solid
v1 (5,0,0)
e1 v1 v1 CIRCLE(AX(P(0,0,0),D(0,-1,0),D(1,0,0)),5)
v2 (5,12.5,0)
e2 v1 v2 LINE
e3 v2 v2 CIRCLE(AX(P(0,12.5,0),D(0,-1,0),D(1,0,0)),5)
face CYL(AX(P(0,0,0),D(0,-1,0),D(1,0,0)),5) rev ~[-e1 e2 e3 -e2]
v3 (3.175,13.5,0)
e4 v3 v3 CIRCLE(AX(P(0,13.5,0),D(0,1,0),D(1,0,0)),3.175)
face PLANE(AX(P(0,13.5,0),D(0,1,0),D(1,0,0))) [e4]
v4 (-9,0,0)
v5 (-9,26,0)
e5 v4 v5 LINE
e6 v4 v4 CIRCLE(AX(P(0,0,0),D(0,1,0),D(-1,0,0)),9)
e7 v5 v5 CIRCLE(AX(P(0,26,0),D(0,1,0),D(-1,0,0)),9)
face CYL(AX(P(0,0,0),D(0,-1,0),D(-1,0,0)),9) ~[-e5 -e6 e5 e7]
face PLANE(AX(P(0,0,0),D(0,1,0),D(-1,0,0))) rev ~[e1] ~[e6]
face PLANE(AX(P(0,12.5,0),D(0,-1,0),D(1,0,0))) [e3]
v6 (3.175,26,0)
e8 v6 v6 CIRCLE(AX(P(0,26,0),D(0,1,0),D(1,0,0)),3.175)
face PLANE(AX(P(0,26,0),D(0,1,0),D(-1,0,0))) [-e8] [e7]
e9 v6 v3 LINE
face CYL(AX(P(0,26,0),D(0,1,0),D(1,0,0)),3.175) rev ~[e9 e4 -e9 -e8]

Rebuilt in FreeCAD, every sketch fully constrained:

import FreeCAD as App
import Part
import Sketcher
from FreeCAD import Vector
Q = App.Units.Quantity

doc = App.newDocument("Part")
body = doc.addObject("PartDesign::Body", "Body")

sketch1 = body.newObject("Sketcher::SketchObject", "Sketch")
sketch1.AttachmentSupport = (doc.getObject("XZ_Plane"), [""])
sketch1.MapMode = "FlatFace"
sketch1.addGeometry(Part.Circle(Vector(0, 0, 0), Vector(0, 0, 1), 9), False)
sketch1.addConstraint(Sketcher.Constraint("Coincident", 0, 3, -1, 1))
sketch1.addConstraint(Sketcher.Constraint("Diameter", 0, Q("18 mm")))
pad1 = body.newObject("PartDesign::Pad", "Pad")
pad1.Profile = sketch1
pad1.Length = 26
pad1.Reversed = True

sketch2 = body.newObject("Sketcher::SketchObject", "Sketch001")
sketch2.AttachmentSupport = (doc.getObject("XZ_Plane"), [""])
sketch2.MapMode = "FlatFace"
sketch2.AttachmentOffset = App.Placement(Vector(0, 0, -26), App.Rotation())
sketch2.addGeometry(Part.Circle(Vector(0, 0, 0), Vector(0, 0, 1), 3.175), False)
sketch2.addConstraint(Sketcher.Constraint("Coincident", 0, 3, -1, 1))
sketch2.addConstraint(Sketcher.Constraint("Diameter", 0, Q("6.35 mm")))
pocket1 = body.newObject("PartDesign::Pocket", "Pocket")
pocket1.Profile = sketch2
pocket1.Length = 12.5
pocket1.Reversed = True

sketch3 = body.newObject("Sketcher::SketchObject", "Sketch002")
sketch3.AttachmentSupport = (doc.getObject("XZ_Plane"), [""])
sketch3.MapMode = "FlatFace"
sketch3.addGeometry(Part.Circle(Vector(0, 0, 0), Vector(0, 0, 1), 5), False)
sketch3.addConstraint(Sketcher.Constraint("Coincident", 0, 3, -1, 1))
sketch3.addConstraint(Sketcher.Constraint("Diameter", 0, Q("10 mm")))
pocket2 = body.newObject("PartDesign::Pocket", "Pocket001")
pocket2.Profile = sketch3
pocket2.Length = 12.5

doc.recompute()
